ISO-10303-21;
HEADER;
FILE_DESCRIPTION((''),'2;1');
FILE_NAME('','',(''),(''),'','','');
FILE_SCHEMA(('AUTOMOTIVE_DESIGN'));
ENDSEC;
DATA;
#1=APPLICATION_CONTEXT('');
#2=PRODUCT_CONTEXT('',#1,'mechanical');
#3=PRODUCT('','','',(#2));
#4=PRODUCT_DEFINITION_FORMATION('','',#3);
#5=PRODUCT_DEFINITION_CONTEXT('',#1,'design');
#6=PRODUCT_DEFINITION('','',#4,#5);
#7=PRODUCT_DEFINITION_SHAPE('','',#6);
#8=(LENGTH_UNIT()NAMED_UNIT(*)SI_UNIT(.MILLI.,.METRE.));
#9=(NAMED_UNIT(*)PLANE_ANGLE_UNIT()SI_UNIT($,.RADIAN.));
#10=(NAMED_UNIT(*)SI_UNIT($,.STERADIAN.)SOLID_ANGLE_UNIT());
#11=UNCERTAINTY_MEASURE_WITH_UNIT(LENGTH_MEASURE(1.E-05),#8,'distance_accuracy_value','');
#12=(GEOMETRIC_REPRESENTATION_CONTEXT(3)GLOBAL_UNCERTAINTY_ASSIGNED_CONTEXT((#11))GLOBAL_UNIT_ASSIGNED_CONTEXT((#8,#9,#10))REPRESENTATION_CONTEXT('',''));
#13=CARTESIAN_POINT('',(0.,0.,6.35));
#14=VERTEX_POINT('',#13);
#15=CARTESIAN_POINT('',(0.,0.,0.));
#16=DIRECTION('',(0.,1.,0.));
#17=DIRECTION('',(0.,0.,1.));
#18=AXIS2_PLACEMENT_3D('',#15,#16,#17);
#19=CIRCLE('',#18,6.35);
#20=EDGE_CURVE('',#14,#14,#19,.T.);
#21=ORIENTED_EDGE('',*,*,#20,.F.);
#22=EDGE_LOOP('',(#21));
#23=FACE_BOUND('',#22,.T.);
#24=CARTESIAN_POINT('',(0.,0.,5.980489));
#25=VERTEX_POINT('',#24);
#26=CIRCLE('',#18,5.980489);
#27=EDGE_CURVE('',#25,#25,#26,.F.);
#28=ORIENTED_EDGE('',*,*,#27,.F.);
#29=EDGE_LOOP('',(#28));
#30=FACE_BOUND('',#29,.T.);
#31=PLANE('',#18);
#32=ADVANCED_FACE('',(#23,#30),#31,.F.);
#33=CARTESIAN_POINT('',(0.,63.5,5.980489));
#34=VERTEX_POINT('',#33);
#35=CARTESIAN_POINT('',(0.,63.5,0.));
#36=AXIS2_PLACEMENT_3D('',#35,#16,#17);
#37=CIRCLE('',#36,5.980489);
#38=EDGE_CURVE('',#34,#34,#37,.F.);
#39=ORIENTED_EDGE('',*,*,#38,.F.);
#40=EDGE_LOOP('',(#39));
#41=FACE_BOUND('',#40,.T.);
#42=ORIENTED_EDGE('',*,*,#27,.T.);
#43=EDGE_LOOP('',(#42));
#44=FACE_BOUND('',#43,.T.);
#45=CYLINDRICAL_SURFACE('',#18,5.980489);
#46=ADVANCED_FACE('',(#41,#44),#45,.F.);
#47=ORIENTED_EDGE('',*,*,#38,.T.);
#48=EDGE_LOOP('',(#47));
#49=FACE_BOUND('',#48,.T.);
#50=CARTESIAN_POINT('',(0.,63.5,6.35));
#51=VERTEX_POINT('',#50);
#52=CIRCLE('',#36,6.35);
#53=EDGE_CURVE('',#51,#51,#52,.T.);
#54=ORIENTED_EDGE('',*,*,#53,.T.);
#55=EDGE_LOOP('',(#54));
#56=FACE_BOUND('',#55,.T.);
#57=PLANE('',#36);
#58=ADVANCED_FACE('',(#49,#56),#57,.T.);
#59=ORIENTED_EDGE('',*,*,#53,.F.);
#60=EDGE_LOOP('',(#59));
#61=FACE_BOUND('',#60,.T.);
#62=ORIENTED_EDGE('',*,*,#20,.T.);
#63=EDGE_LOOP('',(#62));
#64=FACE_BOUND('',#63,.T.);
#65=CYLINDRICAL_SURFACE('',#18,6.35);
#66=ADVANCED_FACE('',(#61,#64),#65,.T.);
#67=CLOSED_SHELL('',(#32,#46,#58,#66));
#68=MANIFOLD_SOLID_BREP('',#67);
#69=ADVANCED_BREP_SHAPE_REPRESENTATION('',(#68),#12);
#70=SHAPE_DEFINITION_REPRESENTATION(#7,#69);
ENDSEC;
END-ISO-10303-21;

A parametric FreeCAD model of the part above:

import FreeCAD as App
import Part
import Sketcher

V = App.Vector
Q = App.Units.Quantity

doc = App.newDocument("Part")
body = doc.addObject("PartDesign::Body", "Body")

# Sketch on XZ plane
sketch1 = doc.addObject("Sketcher::SketchObject", "Sketch")
body.addObject(sketch1)
sketch1.AttachmentSupport = (doc.XZ_Plane, [""])
sketch1.MapMode = "FlatFace"
sketch1.addGeometry([
    Part.Circle(V(0, 0, 0), V(0, 0, 1), 6),
    Part.Circle(V(0, 0, 0), V(0, 0, 1), 6),
], False)
sketch1.addConstraint([
    Sketcher.Constraint("Coincident", 0, 3, -1, 1),
    Sketcher.Constraint("Coincident", 1, 3, -1, 1),
    Sketcher.Constraint("Diameter", 0, Q("0.5 in")),
    Sketcher.Constraint("Diameter", 1, 11.960978),
])

# Sketch on XY plane
sketch2 = doc.addObject("Sketcher::SketchObject", "Sketch001")
body.addObject(sketch2)
sketch2.AttachmentSupport = (doc.XY_Plane, [""])
sketch2.MapMode = "FlatFace"
sketch2.addGeometry(Part.LineSegment(V(0, 0, 0), V(0, 64, 0)), False)
sketch2.addConstraint([
    Sketcher.Constraint("Vertical", 0),
    Sketcher.Constraint("Coincident", 0, 1, -1, 1),
    Sketcher.Constraint("DistanceY", 0, 1, 0, 2, Q("2.5 in")),
])
doc.recompute()

additivepipe = doc.addObject("PartDesign::AdditivePipe", "AdditivePipe")
body.addObject(additivepipe)
additivepipe.Profile = sketch1
additivepipe.Spine = (sketch2, ["Edge1"])

doc.recompute()
